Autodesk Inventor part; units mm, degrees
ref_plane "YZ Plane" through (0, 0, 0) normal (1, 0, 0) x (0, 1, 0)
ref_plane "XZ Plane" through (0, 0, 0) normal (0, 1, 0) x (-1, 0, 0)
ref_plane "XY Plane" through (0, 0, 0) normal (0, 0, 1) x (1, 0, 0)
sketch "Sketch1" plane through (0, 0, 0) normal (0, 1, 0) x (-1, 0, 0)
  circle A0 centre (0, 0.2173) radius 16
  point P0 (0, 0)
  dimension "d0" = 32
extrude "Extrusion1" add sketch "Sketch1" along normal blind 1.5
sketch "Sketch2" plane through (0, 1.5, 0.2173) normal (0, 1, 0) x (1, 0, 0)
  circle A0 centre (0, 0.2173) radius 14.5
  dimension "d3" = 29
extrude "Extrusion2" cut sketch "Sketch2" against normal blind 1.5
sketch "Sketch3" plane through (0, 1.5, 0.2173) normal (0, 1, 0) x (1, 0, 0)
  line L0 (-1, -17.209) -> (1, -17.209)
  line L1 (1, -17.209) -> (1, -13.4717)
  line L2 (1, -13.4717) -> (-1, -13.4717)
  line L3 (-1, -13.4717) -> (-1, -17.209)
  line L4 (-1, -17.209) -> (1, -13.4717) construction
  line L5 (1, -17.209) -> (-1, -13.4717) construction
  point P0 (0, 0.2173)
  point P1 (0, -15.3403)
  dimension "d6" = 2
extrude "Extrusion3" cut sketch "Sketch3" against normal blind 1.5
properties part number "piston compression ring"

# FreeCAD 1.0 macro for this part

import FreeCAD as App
import Part
import Sketcher
from FreeCAD import Vector

doc = App.newDocument("Part")
body = doc.addObject("PartDesign::Body", "Body")

sketch1 = doc.addObject("Sketcher::SketchObject", "Sketch")
body.addObject(sketch1)
sketch1.AttachmentSupport = (doc.XZ_Plane, [""])
sketch1.MapMode = "FlatFace"
sketch1.addGeometry(Part.Circle(Vector(0, 0, 0), Vector(0, 0, 1), 16), False)
sketch1.addConstraint([
    Sketcher.Constraint("PointOnObject", 0, 3, -2),
    Sketcher.Constraint("Diameter", 0, 32.0),
    Sketcher.Constraint("DistanceY", -1, 1, 0, 3, 0.2173),
])
pad1 = doc.addObject("PartDesign::Pad", "Pad")
body.addObject(pad1)
pad1.Profile = sketch1
pad1.Length = 1.5
pad1.Reversed = True

sketch2 = doc.addObject("Sketcher::SketchObject", "Sketch001")
body.addObject(sketch2)
sketch2.AttachmentSupport = (doc.XZ_Plane, [""])
sketch2.MapMode = "FlatFace"
sketch2.AttachmentOffset = App.Placement(Vector(0, 0, -1.5), App.Rotation())
sketch2.addGeometry(Part.Circle(Vector(0, 0, 0), Vector(0, 0, 1), 14), False)
sketch2.addConstraint([
    Sketcher.Constraint("Coincident", 0, 3, -1, 1),
    Sketcher.Constraint("Diameter", 0, 29.0),
])
pocket1 = doc.addObject("PartDesign::Pocket", "Pocket")
body.addObject(pocket1)
pocket1.Profile = sketch2
pocket1.Length = 1.5
pocket1.Reversed = True

sketch3 = doc.addObject("Sketcher::SketchObject", "Sketch002")
body.addObject(sketch3)
sketch3.AttachmentSupport = (doc.XZ_Plane, [""])
sketch3.MapMode = "FlatFace"
sketch3.AttachmentOffset = App.Placement(Vector(0, 0, -1.5), App.Rotation())
sketch3.addGeometry([
    Part.LineSegment(Vector(-1, 13.7, 0), Vector(-1, 17.4, 0)),
    Part.LineSegment(Vector(-1, 17.4, 0), Vector(1, 17.4, 0)),
    Part.LineSegment(Vector(1, 17.4, 0), Vector(1, 13.7, 0)),
    Part.LineSegment(Vector(1, 13.7, 0), Vector(-1, 13.7, 0)),
], False)
sketch3.addConstraint([
    Sketcher.Constraint("Coincident", 0, 2, 1, 1),
    Sketcher.Constraint("Coincident", 1, 2, 2, 1),
    Sketcher.Constraint("Coincident", 2, 2, 3, 1),
    Sketcher.Constraint("Coincident", 3, 2, 0, 1),
    Sketcher.Constraint("Vertical", 0),
    Sketcher.Constraint("Horizontal", 1),
    Sketcher.Constraint("Vertical", 2),
    Sketcher.Constraint("Horizontal", 3),
    Sketcher.Constraint("DistanceX", 1, 1, 1, 2, 2.0),
    Sketcher.Constraint("DistanceX", 0, 2, -1, 1, 1.0),
    Sketcher.Constraint("DistanceY", 0, 1, 0, 2, 3.7373),
    Sketcher.Constraint("DistanceY", -1, 1, 2, 2, 13.689),
])
pocket2 = doc.addObject("PartDesign::Pocket", "Pocket001")
body.addObject(pocket2)
pocket2.Profile = sketch3
pocket2.Length = 1.5
pocket2.Reversed = True

doc.recompute()
